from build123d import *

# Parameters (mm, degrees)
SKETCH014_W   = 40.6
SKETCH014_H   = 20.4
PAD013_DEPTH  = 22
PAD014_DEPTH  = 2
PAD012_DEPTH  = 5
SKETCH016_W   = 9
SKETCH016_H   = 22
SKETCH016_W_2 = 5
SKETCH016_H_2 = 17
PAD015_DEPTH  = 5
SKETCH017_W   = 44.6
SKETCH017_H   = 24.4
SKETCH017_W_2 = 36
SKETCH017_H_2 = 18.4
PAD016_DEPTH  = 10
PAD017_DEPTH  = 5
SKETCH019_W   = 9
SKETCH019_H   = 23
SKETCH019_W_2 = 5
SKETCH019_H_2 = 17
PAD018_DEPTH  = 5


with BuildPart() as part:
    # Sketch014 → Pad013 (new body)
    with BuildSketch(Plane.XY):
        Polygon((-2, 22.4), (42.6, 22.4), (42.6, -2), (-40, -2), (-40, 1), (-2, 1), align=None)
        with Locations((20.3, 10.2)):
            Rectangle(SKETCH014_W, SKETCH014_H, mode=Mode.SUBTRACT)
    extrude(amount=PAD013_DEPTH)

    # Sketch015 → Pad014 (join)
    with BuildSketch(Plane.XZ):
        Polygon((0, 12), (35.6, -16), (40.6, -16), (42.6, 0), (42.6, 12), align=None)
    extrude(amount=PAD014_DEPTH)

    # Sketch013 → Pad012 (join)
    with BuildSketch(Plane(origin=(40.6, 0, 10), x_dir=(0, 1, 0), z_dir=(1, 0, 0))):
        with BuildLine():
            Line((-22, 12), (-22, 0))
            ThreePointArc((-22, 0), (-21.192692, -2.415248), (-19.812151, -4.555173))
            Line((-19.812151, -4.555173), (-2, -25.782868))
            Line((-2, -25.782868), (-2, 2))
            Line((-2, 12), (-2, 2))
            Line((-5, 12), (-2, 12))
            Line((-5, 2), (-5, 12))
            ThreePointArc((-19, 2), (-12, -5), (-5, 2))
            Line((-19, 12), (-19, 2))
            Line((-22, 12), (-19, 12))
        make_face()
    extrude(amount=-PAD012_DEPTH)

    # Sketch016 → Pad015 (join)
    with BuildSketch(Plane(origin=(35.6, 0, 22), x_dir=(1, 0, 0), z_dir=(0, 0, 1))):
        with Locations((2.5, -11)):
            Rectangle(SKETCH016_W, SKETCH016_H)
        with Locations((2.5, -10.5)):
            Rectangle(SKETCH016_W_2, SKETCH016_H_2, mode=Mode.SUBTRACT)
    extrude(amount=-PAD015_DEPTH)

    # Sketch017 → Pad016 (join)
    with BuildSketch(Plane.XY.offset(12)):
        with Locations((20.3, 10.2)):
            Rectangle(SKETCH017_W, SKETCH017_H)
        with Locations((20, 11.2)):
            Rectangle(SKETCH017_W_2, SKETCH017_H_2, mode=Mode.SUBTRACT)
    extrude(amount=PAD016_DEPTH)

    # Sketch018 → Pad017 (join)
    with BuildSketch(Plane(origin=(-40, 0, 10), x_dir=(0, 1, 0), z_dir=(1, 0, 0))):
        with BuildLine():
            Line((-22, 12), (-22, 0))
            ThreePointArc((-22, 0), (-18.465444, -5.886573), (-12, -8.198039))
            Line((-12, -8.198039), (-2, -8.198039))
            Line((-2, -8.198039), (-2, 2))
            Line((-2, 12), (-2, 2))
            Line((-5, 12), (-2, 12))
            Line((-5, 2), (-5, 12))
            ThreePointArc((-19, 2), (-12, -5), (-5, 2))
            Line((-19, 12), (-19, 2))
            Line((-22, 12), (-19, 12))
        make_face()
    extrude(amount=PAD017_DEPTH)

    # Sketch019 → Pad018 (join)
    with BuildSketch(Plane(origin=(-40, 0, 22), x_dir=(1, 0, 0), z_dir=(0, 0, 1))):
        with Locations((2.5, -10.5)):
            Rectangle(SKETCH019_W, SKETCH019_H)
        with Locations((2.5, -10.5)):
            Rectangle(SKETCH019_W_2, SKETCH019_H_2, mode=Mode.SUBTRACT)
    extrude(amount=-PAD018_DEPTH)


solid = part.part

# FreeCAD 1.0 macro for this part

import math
import FreeCAD as App
import Part
import Sketcher
Q = App.Units.Quantity

doc = App.newDocument("Part")
body = doc.addObject("PartDesign::Body", "Body")

# Sketch on XY plane
sketch1 = body.newObject("Sketcher::SketchObject", "Sketch")
sketch1.AttachmentSupport = (doc.getObject("XY_Plane"), [""])
sketch1.MapMode = "FlatFace"
sketch1.addGeometry(Part.LineSegment(App.Vector(42.6, 22.4, 0), App.Vector(-2, 22.4, 0)), False)
sketch1.addGeometry(Part.LineSegment(App.Vector(-2, 22.4, 0), App.Vector(-2, 1, 0)), False)
sketch1.addGeometry(Part.LineSegment(App.Vector(-2, 1, 0), App.Vector(-40, 1, 0)), False)
sketch1.addGeometry(Part.LineSegment(App.Vector(-40, 1, 0), App.Vector(-40, -2, 0)), False)
sketch1.addGeometry(Part.LineSegment(App.Vector(-40, -2, 0), App.Vector(42.6, -2, 0)), False)
sketch1.addGeometry(Part.LineSegment(App.Vector(42.6, -2, 0), App.Vector(42.6, 22.4, 0)), False)
sketch1.addGeometry(Part.LineSegment(App.Vector(0, 0, 0), App.Vector(0, 20.4, 0)), False)
sketch1.addGeometry(Part.LineSegment(App.Vector(0, 20.4, 0), App.Vector(40.6, 20.4, 0)), False)
sketch1.addGeometry(Part.LineSegment(App.Vector(40.6, 20.4, 0), App.Vector(40.6, 0, 0)), False)
sketch1.addGeometry(Part.LineSegment(App.Vector(40.6, 0, 0), App.Vector(0, 0, 0)), False)
sketch1.addConstraint(Sketcher.Constraint("Coincident", 0, 2, 1, 1))
sketch1.addConstraint(Sketcher.Constraint("Coincident", 1, 2, 2, 1))
sketch1.addConstraint(Sketcher.Constraint("Coincident", 2, 2, 3, 1))
sketch1.addConstraint(Sketcher.Constraint("Coincident", 3, 2, 4, 1))
sketch1.addConstraint(Sketcher.Constraint("Coincident", 4, 2, 5, 1))
sketch1.addConstraint(Sketcher.Constraint("Coincident", 5, 2, 0, 1))
sketch1.addConstraint(Sketcher.Constraint("Coincident", 6, 2, 7, 1))
sketch1.addConstraint(Sketcher.Constraint("Coincident", 7, 2, 8, 1))
sketch1.addConstraint(Sketcher.Constraint("Coincident", 8, 2, 9, 1))
sketch1.addConstraint(Sketcher.Constraint("Coincident", 9, 2, 6, 1))
sketch1.addConstraint(Sketcher.Constraint("Horizontal", 0))
sketch1.addConstraint(Sketcher.Constraint("Vertical", 1))
sketch1.addConstraint(Sketcher.Constraint("Horizontal", 2))
sketch1.addConstraint(Sketcher.Constraint("Vertical", 3))
sketch1.addConstraint(Sketcher.Constraint("Horizontal", 4))
sketch1.addConstraint(Sketcher.Constraint("Vertical", 5))
sketch1.addConstraint(Sketcher.Constraint("Vertical", 6))
sketch1.addConstraint(Sketcher.Constraint("Horizontal", 7))
sketch1.addConstraint(Sketcher.Constraint("Vertical", 8))
sketch1.addConstraint(Sketcher.Constraint("Horizontal", 9))
sketch1.addConstraint(Sketcher.Constraint("Coincident", 9, 2, -1, 1))
sketch1.addConstraint(Sketcher.Constraint("DistanceX", 2, 2, 2, 1, 38.0))
sketch1.addConstraint(Sketcher.Constraint("DistanceY", 3, 2, 3, 1, 3.0))
sketch1.addConstraint(Sketcher.Constraint("DistanceX", 0, 2, 0, 1, 44.6))
sketch1.addConstraint(Sketcher.Constraint("DistanceX", 7, 1, 7, 2, 40.6))
sketch1.addConstraint(Sketcher.Constraint("DistanceY", 1, 2, 1, 1, 21.4))
sketch1.addConstraint(Sketcher.Constraint("DistanceY", 6, 1, 6, 2, 20.4))
sketch1.addConstraint(Sketcher.Constraint("DistanceX", 0, 2, -1, 1, 2.0))
sketch1.addConstraint(Sketcher.Constraint("DistanceY", -1, 1, 1, 2, 1.0))
pad1 = body.newObject("PartDesign::Pad", "Pad")
pad1.Profile = sketch1
pad1.Length = 22

# Sketch on XZ plane
sketch2 = body.newObject("Sketcher::SketchObject", "Sketch001")
sketch2.AttachmentSupport = (doc.getObject("XZ_Plane"), [""])
sketch2.MapMode = "FlatFace"
sketch2.addGeometry(Part.LineSegment(App.Vector(0, 12, 0), App.Vector(35.6, -16, 0)), False)
sketch2.addGeometry(Part.LineSegment(App.Vector(35.6, -16, 0), App.Vector(40.6, -16, 0)), False)
sketch2.addGeometry(Part.LineSegment(App.Vector(40.6, -16, 0), App.Vector(42.6, 0, 0)), False)
sketch2.addGeometry(Part.LineSegment(App.Vector(42.6, 0, 0), App.Vector(42.6, 12, 0)), False)
sketch2.addGeometry(Part.LineSegment(App.Vector(42.6, 12, 0), App.Vector(0, 12, 0)), False)
sketch2.addConstraint(Sketcher.Constraint("Coincident", 0, 2, 1, 1))
sketch2.addConstraint(Sketcher.Constraint("Coincident", 1, 2, 2, 1))
sketch2.addConstraint(Sketcher.Constraint("Coincident", 2, 2, 3, 1))
sketch2.addConstraint(Sketcher.Constraint("Coincident", 3, 2, 4, 1))
sketch2.addConstraint(Sketcher.Constraint("Coincident", 4, 2, 0, 1))
sketch2.addConstraint(Sketcher.Constraint("Horizontal", 1))
sketch2.addConstraint(Sketcher.Constraint("Vertical", 3))
sketch2.addConstraint(Sketcher.Constraint("Horizontal", 4))
sketch2.addConstraint(Sketcher.Constraint("PointOnObject", 2, 2, -1))
sketch2.addConstraint(Sketcher.Constraint("PointOnObject", 4, 2, -2))
sketch2.addConstraint(Sketcher.Constraint("DistanceX", 1, 1, 1, 2, 5.0))
sketch2.addConstraint(Sketcher.Constraint("DistanceY", 3, 1, 3, 2, 12.0))
sketch2.addConstraint(Sketcher.Constraint("DistanceX", 4, 2, 4, 1, 42.6))
sketch2.addConstraint(Sketcher.Constraint("DistanceY", 0, 2, -1, 1, 16.0))
sketch2.addConstraint(Sketcher.Constraint("DistanceX", 1, 2, 2, 2, 2.0))
pad2 = body.newObject("PartDesign::Pad", "Pad001")
pad2.Profile = sketch2
pad2.Length = 2

# Sketch on YZ plane
sketch3 = body.newObject("Sketcher::SketchObject", "Sketch002")
sketch3.AttachmentSupport = (doc.getObject("YZ_Plane"), [""])
sketch3.MapMode = "FlatFace"
sketch3.AttachmentOffset = App.Placement(App.Vector(0, 0, 40.6), App.Rotation())
sketch3.addGeometry(Part.LineSegment(App.Vector(-22, 22, 0), App.Vector(-22, 10, 0)), False)
sketch3.addGeometry(Part.ArcOfCircle(Part.Circle(App.Vector(-12.000004, 11.999998, 0), App.Vector(0, 0, 1), 10.198034), math.radians(-168.690072), math.radians(-139.999992)), False)
sketch3.addGeometry(Part.LineSegment(App.Vector(-19.812151, 5.444827, 0), App.Vector(-2, -15.782868, 0)), False)
sketch3.addGeometry(Part.LineSegment(App.Vector(-2, -15.782868, 0), App.Vector(-2, 22, 0)), False)
sketch3.addGeometry(Part.LineSegment(App.Vector(-2, 22, 0), App.Vector(-5, 22, 0)), False)
sketch3.addGeometry(Part.LineSegment(App.Vector(-5, 22, 0), App.Vector(-5, 12, 0)), False)
sketch3.addGeometry(Part.ArcOfCircle(Part.Circle(App.Vector(-12, 12, 0), App.Vector(0, 0, 1), 7), math.radians(180), math.radians(360)), False)
sketch3.addGeometry(Part.LineSegment(App.Vector(-19, 12, 0), App.Vector(-19, 22, 0)), False)
sketch3.addGeometry(Part.LineSegment(App.Vector(-19, 22, 0), App.Vector(-22, 22, 0)), False)
sketch3.addConstraint(Sketcher.Constraint("Coincident", 0, 2, 1, 1))
sketch3.addConstraint(Sketcher.Constraint("Tangent", 1, 2, 2, 1))
sketch3.addConstraint(Sketcher.Constraint("Coincident", 2, 2, 3, 1))
sketch3.addConstraint(Sketcher.Constraint("Coincident", 3, 2, 4, 1))
sketch3.addConstraint(Sketcher.Constraint("Coincident", 4, 2, 5, 1))
sketch3.addConstraint(Sketcher.Constraint("Tangent", 5, 2, 6, 2))
sketch3.addConstraint(Sketcher.Constraint("Tangent", 6, 1, 7, 1))
sketch3.addConstraint(Sketcher.Constraint("Coincident", 7, 2, 8, 1))
sketch3.addConstraint(Sketcher.Constraint("Coincident", 8, 2, 0, 1))
sketch3.addConstraint(Sketcher.Constraint("Vertical", 0))
sketch3.addConstraint(Sketcher.Constraint("Vertical", 3))
sketch3.addConstraint(Sketcher.Constraint("Horizontal", 4))
sketch3.addConstraint(Sketcher.Constraint("Vertical", 5))
sketch3.addConstraint(Sketcher.Constraint("Vertical", 7))
sketch3.addConstraint(Sketcher.Constraint("Horizontal", 8))
sketch3.addConstraint(Sketcher.Constraint("Coincident", 6, 3, 1, 3))
sketch3.addConstraint(Sketcher.Constraint("Horizontal", 4, 2, 7, 2))
sketch3.addConstraint(Sketcher.Constraint("Equal", 4, 8))
sketch3.addConstraint(Sketcher.Constraint("Radius", 6, 7.0))
sketch3.addConstraint(Sketcher.Constraint("DistanceX", 4, 2, 4, 1, 3.0))
sketch3.addConstraint(Sketcher.Constraint("DistanceY", 0, 2, 0, 1, 12.0))
sketch3.addConstraint(Sketcher.Constraint("DistanceY", 5, 2, 5, 1, 10.0))
sketch3.addConstraint(Sketcher.Constraint("Angle", 2, Q("-50 deg")))
sketch3.addConstraint(Sketcher.Constraint("DistanceY", -1, 1, 1, 3, 11.999998))
sketch3.addConstraint(Sketcher.Constraint("DistanceX", 6, 3, -1, 1, 12.0))
pad3 = body.newObject("PartDesign::Pad", "Pad002")
pad3.Profile = sketch3
pad3.Length = 5
pad3.Reversed = True

# Sketch on XY plane
sketch4 = body.newObject("Sketcher::SketchObject", "Sketch003")
sketch4.AttachmentSupport = (doc.getObject("XY_Plane"), [""])
sketch4.MapMode = "FlatFace"
sketch4.AttachmentOffset = App.Placement(App.Vector(0, 0, 22), App.Rotation())
sketch4.addGeometry(Part.LineSegment(App.Vector(33.6, 0, 0), App.Vector(33.6, -22, 0)), False)
sketch4.addGeometry(Part.LineSegment(App.Vector(33.6, -22, 0), App.Vector(42.6, -22, 0)), False)
sketch4.addGeometry(Part.LineSegment(App.Vector(42.6, -22, 0), App.Vector(42.6, 0, 0)), False)
sketch4.addGeometry(Part.LineSegment(App.Vector(42.6, 0, 0), App.Vector(33.6, 0, 0)), False)
sketch4.addGeometry(Part.LineSegment(App.Vector(40.6, -19, 0), App.Vector(35.6, -19, 0)), False)
sketch4.addGeometry(Part.LineSegment(App.Vector(35.6, -19, 0), App.Vector(35.6, -2, 0)), False)
sketch4.addGeometry(Part.LineSegment(App.Vector(35.6, -2, 0), App.Vector(40.6, -2, 0)), False)
sketch4.addGeometry(Part.LineSegment(App.Vector(40.6, -2, 0), App.Vector(40.6, -19, 0)), False)
sketch4.addConstraint(Sketcher.Constraint("Coincident", 0, 2, 1, 1))
sketch4.addConstraint(Sketcher.Constraint("Coincident", 1, 2, 2, 1))
sketch4.addConstraint(Sketcher.Constraint("Coincident", 2, 2, 3, 1))
sketch4.addConstraint(Sketcher.Constraint("Coincident", 3, 2, 0, 1))
sketch4.addConstraint(Sketcher.Constraint("Coincident", 4, 2, 5, 1))
sketch4.addConstraint(Sketcher.Constraint("Coincident", 5, 2, 6, 1))
sketch4.addConstraint(Sketcher.Constraint("Coincident", 6, 2, 7, 1))
sketch4.addConstraint(Sketcher.Constraint("Coincident", 7, 2, 4, 1))
sketch4.addConstraint(Sketcher.Constraint("Vertical", 0))
sketch4.addConstraint(Sketcher.Constraint("Horizontal", 1))
sketch4.addConstraint(Sketcher.Constraint("Vertical", 2))
sketch4.addConstraint(Sketcher.Constraint("Horizontal", 3))
sketch4.addConstraint(Sketcher.Constraint("Horizontal", 4))
sketch4.addConstraint(Sketcher.Constraint("Vertical", 5))
sketch4.addConstraint(Sketcher.Constraint("Horizontal", 6))
sketch4.addConstraint(Sketcher.Constraint("Vertical", 7))
sketch4.addConstraint(Sketcher.Constraint("PointOnObject", 2, 2, -1))
sketch4.addConstraint(Sketcher.Constraint("DistanceX", 1, 1, 1, 2, 9.0))
sketch4.addConstraint(Sketcher.Constraint("DistanceX", 4, 2, 4, 1, 5.0))
sketch4.addConstraint(Sketcher.Constraint("DistanceY", 0, 2, 0, 1, 22.0))
sketch4.addConstraint(Sketcher.Constraint("DistanceY", 5, 1, 5, 2, 17.0))
sketch4.addConstraint(Sketcher.Constraint("DistanceY", 4, 2, -1, 1, 19.0))
sketch4.addConstraint(Sketcher.Constraint("DistanceX", 0, 2, 4, 2, 2.0))
sketch4.addConstraint(Sketcher.Constraint("DistanceX", -1, 1, 0, 2, 33.6))
pad4 = body.newObject("PartDesign::Pad", "Pad003")
pad4.Profile = sketch4
pad4.Length = 5
pad4.Reversed = True

# Sketch on XY plane
sketch5 = body.newObject("Sketcher::SketchObject", "Sketch004")
sketch5.AttachmentSupport = (doc.getObject("XY_Plane"), [""])
sketch5.MapMode = "FlatFace"
sketch5.AttachmentOffset = App.Placement(App.Vector(0, 0, 12), App.Rotation())
sketch5.addGeometry(Part.LineSegment(App.Vector(-2, 22.4, 0), App.Vector(-2, -2, 0)), False)
sketch5.addGeometry(Part.LineSegment(App.Vector(-2, -2, 0), App.Vector(42.6, -2, 0)), False)
sketch5.addGeometry(Part.LineSegment(App.Vector(42.6, -2, 0), App.Vector(42.6, 22.4, 0)), False)
sketch5.addGeometry(Part.LineSegment(App.Vector(42.6, 22.4, 0), App.Vector(-2, 22.4, 0)), False)
sketch5.addGeometry(Part.LineSegment(App.Vector(38, 2, 0), App.Vector(2, 2, 0)), False)
sketch5.addGeometry(Part.LineSegment(App.Vector(2, 2, 0), App.Vector(2, 20.4, 0)), False)
sketch5.addGeometry(Part.LineSegment(App.Vector(2, 20.4, 0), App.Vector(38, 20.4, 0)), False)
sketch5.addGeometry(Part.LineSegment(App.Vector(38, 20.4, 0), App.Vector(38, 2, 0)), False)
sketch5.addConstraint(Sketcher.Constraint("Coincident", 0, 2, 1, 1))
sketch5.addConstraint(Sketcher.Constraint("Coincident", 1, 2, 2, 1))
sketch5.addConstraint(Sketcher.Constraint("Coincident", 2, 2, 3, 1))
sketch5.addConstraint(Sketcher.Constraint("Coincident", 3, 2, 0, 1))
sketch5.addConstraint(Sketcher.Constraint("Coincident", 4, 2, 5, 1))
sketch5.addConstraint(Sketcher.Constraint("Coincident", 5, 2, 6, 1))
sketch5.addConstraint(Sketcher.Constraint("Coincident", 6, 2, 7, 1))
sketch5.addConstraint(Sketcher.Constraint("Coincident", 7, 2, 4, 1))
sketch5.addConstraint(Sketcher.Constraint("Vertical", 0))
sketch5.addConstraint(Sketcher.Constraint("Horizontal", 1))
sketch5.addConstraint(Sketcher.Constraint("Vertical", 2))
sketch5.addConstraint(Sketcher.Constraint("Horizontal", 3))
sketch5.addConstraint(Sketcher.Constraint("Horizontal", 4))
sketch5.addConstraint(Sketcher.Constraint("Vertical", 5))
sketch5.addConstraint(Sketcher.Constraint("Horizontal", 6))
sketch5.addConstraint(Sketcher.Constraint("Vertical", 7))
sketch5.addConstraint(Sketcher.Constraint("Symmetric", 0, 2, 4, 2, -1, 1))
sketch5.addConstraint(Sketcher.Constraint("DistanceX", 4, 2, 4, 1, 36.0))
sketch5.addConstraint(Sketcher.Constraint("DistanceX", 1, 1, 1, 2, 44.6))
sketch5.addConstraint(Sketcher.Constraint("DistanceY", 0, 2, 0, 1, 24.4))
sketch5.addConstraint(Sketcher.Constraint("DistanceY", 5, 1, 5, 2, 18.4))
sketch5.addConstraint(Sketcher.Constraint("DistanceX", 0, 2, -1, 1, 2.0))
sketch5.addConstraint(Sketcher.Constraint("DistanceY", 0, 2, -1, 1, 2.0))
pad5 = body.newObject("PartDesign::Pad", "Pad004")
pad5.Profile = sketch5
pad5.Length = 10

# Sketch on YZ plane
sketch6 = body.newObject("Sketcher::SketchObject", "Sketch005")
sketch6.AttachmentSupport = (doc.getObject("YZ_Plane"), [""])
sketch6.MapMode = "FlatFace"
sketch6.AttachmentOffset = App.Placement(App.Vector(0, 0, -40), App.Rotation())
sketch6.addGeometry(Part.LineSegment(App.Vector(-22, 22, 0), App.Vector(-22, 10, 0)), False)
sketch6.addGeometry(Part.ArcOfCircle(Part.Circle(App.Vector(-12, 12, 0), App.Vector(0, 0, 1), 10.198039), math.radians(-168.690067), math.radians(-90)), False)
sketch6.addGeometry(Part.LineSegment(App.Vector(-12, 1.801961, 0), App.Vector(-2, 1.801961, 0)), False)
sketch6.addGeometry(Part.LineSegment(App.Vector(-2, 1.801961, 0), App.Vector(-2, 22, 0)), False)
sketch6.addGeometry(Part.LineSegment(App.Vector(-2, 22, 0), App.Vector(-5, 22, 0)), False)
sketch6.addGeometry(Part.LineSegment(App.Vector(-5, 22, 0), App.Vector(-5, 12, 0)), False)
sketch6.addGeometry(Part.ArcOfCircle(Part.Circle(App.Vector(-12, 12, 0), App.Vector(0, 0, 1), 7), math.radians(180), math.radians(360)), False)
sketch6.addGeometry(Part.LineSegment(App.Vector(-19, 12, 0), App.Vector(-19, 22, 0)), False)
sketch6.addGeometry(Part.LineSegment(App.Vector(-19, 22, 0), App.Vector(-22, 22, 0)), False)
sketch6.addConstraint(Sketcher.Constraint("Coincident", 0, 2, 1, 1))
sketch6.addConstraint(Sketcher.Constraint("Tangent", 1, 2, 2, 1))
sketch6.addConstraint(Sketcher.Constraint("Coincident", 2, 2, 3, 1))
sketch6.addConstraint(Sketcher.Constraint("Coincident", 3, 2, 4, 1))
sketch6.addConstraint(Sketcher.Constraint("Coincident", 4, 2, 5, 1))
sketch6.addConstraint(Sketcher.Constraint("Tangent", 5, 2, 6, 2))
sketch6.addConstraint(Sketcher.Constraint("Tangent", 6, 1, 7, 1))
sketch6.addConstraint(Sketcher.Constraint("Coincident", 7, 2, 8, 1))
sketch6.addConstraint(Sketcher.Constraint("Coincident", 8, 2, 0, 1))
sketch6.addConstraint(Sketcher.Constraint("Vertical", 0))
sketch6.addConstraint(Sketcher.Constraint("Horizontal", 2))
sketch6.addConstraint(Sketcher.Constraint("Vertical", 3))
sketch6.addConstraint(Sketcher.Constraint("Horizontal", 4))
sketch6.addConstraint(Sketcher.Constraint("Vertical", 5))
sketch6.addConstraint(Sketcher.Constraint("Vertical", 7))
sketch6.addConstraint(Sketcher.Constraint("Horizontal", 8))
sketch6.addConstraint(Sketcher.Constraint("Coincident", 6, 3, 1, 3))
sketch6.addConstraint(Sketcher.Constraint("Horizontal", 4, 2, 7, 2))
sketch6.addConstraint(Sketcher.Constraint("Equal", 4, 8))
sketch6.addConstraint(Sketcher.Constraint("Equal", 2, 5))
sketch6.addConstraint(Sketcher.Constraint("Radius", 6, 7.0))
sketch6.addConstraint(Sketcher.Constraint("DistanceX", 2, 1, 2, 2, 10.0))
sketch6.addConstraint(Sketcher.Constraint("DistanceY", 0, 2, 0, 1, 12.0))
sketch6.addConstraint(Sketcher.Constraint("DistanceX", 1, 3, -1, 1, 12.0))
sketch6.addConstraint(Sketcher.Constraint("DistanceY", -1, 1, 1, 3, 12.0))
pad6 = body.newObject("PartDesign::Pad", "Pad005")
pad6.Profile = sketch6
pad6.Length = 5

# Sketch on XY plane
sketch7 = body.newObject("Sketcher::SketchObject", "Sketch006")
sketch7.AttachmentSupport = (doc.getObject("XY_Plane"), [""])
sketch7.MapMode = "FlatFace"
sketch7.AttachmentOffset = App.Placement(App.Vector(0, 0, 22), App.Rotation())
sketch7.addGeometry(Part.LineSegment(App.Vector(-42, 1, 0), App.Vector(-42, -22, 0)), False)
sketch7.addGeometry(Part.LineSegment(App.Vector(-42, -22, 0), App.Vector(-33, -22, 0)), False)
sketch7.addGeometry(Part.LineSegment(App.Vector(-33, -22, 0), App.Vector(-33, 1, 0)), False)
sketch7.addGeometry(Part.LineSegment(App.Vector(-33, 1, 0), App.Vector(-42, 1, 0)), False)
sketch7.addGeometry(Part.LineSegment(App.Vector(-35, -19, 0), App.Vector(-40, -19, 0)), False)
sketch7.addGeometry(Part.LineSegment(App.Vector(-40, -19, 0), App.Vector(-40, -2, 0)), False)
sketch7.addGeometry(Part.LineSegment(App.Vector(-40, -2, 0), App.Vector(-35, -2, 0)), False)
sketch7.addGeometry(Part.LineSegment(App.Vector(-35, -2, 0), App.Vector(-35, -19, 0)), False)
sketch7.addConstraint(Sketcher.Constraint("Coincident", 0, 2, 1, 1))
sketch7.addConstraint(Sketcher.Constraint("Coincident", 1, 2, 2, 1))
sketch7.addConstraint(Sketcher.Constraint("Coincident", 2, 2, 3, 1))
sketch7.addConstraint(Sketcher.Constraint("Coincident", 3, 2, 0, 1))
sketch7.addConstraint(Sketcher.Constraint("Coincident", 4, 2, 5, 1))
sketch7.addConstraint(Sketcher.Constraint("Coincident", 5, 2, 6, 1))
sketch7.addConstraint(Sketcher.Constraint("Coincident", 6, 2, 7, 1))
sketch7.addConstraint(Sketcher.Constraint("Coincident", 7, 2, 4, 1))
sketch7.addConstraint(Sketcher.Constraint("Vertical", 0))
sketch7.addConstraint(Sketcher.Constraint("Horizontal", 1))
sketch7.addConstraint(Sketcher.Constraint("Vertical", 2))
sketch7.addConstraint(Sketcher.Constraint("Horizontal", 3))
sketch7.addConstraint(Sketcher.Constraint("Horizontal", 4))
sketch7.addConstraint(Sketcher.Constraint("Vertical", 5))
sketch7.addConstraint(Sketcher.Constraint("Horizontal", 6))
sketch7.addConstraint(Sketcher.Constraint("Vertical", 7))
sketch7.addConstraint(Sketcher.Constraint("DistanceX", 1, 1, 1, 2, 9.0))
sketch7.addConstraint(Sketcher.Constraint("DistanceX", 4, 2, 4, 1, 5.0))
sketch7.addConstraint(Sketcher.Constraint("DistanceY", 0, 2, 0, 1, 23.0))
sketch7.addConstraint(Sketcher.Constraint("DistanceY", 5, 1, 5, 2, 17.0))
sketch7.addConstraint(Sketcher.Constraint("DistanceX", 0, 2, -1, 1, 42.0))
sketch7.addConstraint(Sketcher.Constraint("DistanceY", 0, 2, -1, 1, 22.0))
sketch7.addConstraint(Sketcher.Constraint("DistanceX", 4, 2, -1, 1, 40.0))
sketch7.addConstraint(Sketcher.Constraint("DistanceY", 4, 2, -1, 1, 19.0))
pad7 = body.newObject("PartDesign::Pad", "Pad006")
pad7.Profile = sketch7
pad7.Length = 5
pad7.Reversed = True

doc.recompute()
